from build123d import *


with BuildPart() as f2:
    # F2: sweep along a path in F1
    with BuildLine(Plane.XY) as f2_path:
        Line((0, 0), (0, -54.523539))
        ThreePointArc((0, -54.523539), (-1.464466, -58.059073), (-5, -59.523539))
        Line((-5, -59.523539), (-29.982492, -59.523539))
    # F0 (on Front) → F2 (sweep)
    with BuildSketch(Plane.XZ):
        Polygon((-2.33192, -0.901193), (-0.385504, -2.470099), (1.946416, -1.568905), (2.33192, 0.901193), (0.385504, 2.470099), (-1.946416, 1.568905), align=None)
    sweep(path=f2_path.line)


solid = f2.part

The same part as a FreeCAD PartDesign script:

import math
import FreeCAD as App
import Part
import Sketcher

V = App.Vector
Q = App.Units.Quantity


def add_polygon(sketch, points):
    """Adds a closed chain of lines whose ends are joined by coincident constraints."""
    first, n = sketch.GeometryCount, len(points)
    for a, b in zip(points, points[1:] + points[:1]):
        sketch.addGeometry(Part.LineSegment(App.Vector(*a, 0), App.Vector(*b, 0)), False)
    for i in range(n):
        sketch.addConstraint(Sketcher.Constraint("Coincident", first + i, 2, first + (i + 1) % n, 1))

doc = App.newDocument("Part")
body = doc.addObject("PartDesign::Body", "Body")

# Sketch on XZ plane
sketch1 = body.newObject("Sketcher::SketchObject", "Sketch")
sketch1.AttachmentSupport = (doc.getObject("XZ_Plane"), [""])
sketch1.MapMode = "FlatFace"
add_polygon(sketch1, [(-2.33192, -0.901193), (-0.385504, -2.470099), (1.946416, -1.568905), (2.33192, 0.901193), (0.385504, 2.470099), (-1.946416, 1.568905)])  # lines 0-5
sketch1.addConstraint(Sketcher.Constraint("Symmetric", 0, 2, 3, 2, -1, 1))
sketch1.addConstraint(Sketcher.Constraint("Symmetric", 1, 2, 4, 2, -1, 1))
sketch1.addConstraint(Sketcher.Constraint("Symmetric", 2, 2, 5, 2, -1, 1))
sketch1.addConstraint(Sketcher.Constraint("Equal", 0, 1))
sketch1.addConstraint(Sketcher.Constraint("Equal", 1, 2))
sketch1.addConstraint(Sketcher.Constraint("Distance", 0, Q("2.5 mm")))
sketch1.addConstraint(Sketcher.Constraint("DistanceY", 0, 2, -1, 1, Q("2.470099 mm")))
sketch1.addConstraint(Sketcher.Constraint("DistanceY", 1, 2, 2, 2, Q("2.470098 mm")))
sketch1.addConstraint(Sketcher.Constraint("DistanceX", -1, 1, 2, 2, Q("2.33192 mm")))

# Sketch on XY plane
sketch2 = body.newObject("Sketcher::SketchObject", "Sketch001")
sketch2.AttachmentSupport = (doc.getObject("XY_Plane"), [""])
sketch2.MapMode = "FlatFace"
sketch2.addGeometry(Part.LineSegment(V(0, 0, 0), V(0, -54.523539, 0)), False)
sketch2.addGeometry(Part.ArcOfCircle(Part.Circle(V(-5, -54.523539, 0), V(0, 0, 1), 5), math.radians(-90.000004), math.radians(0.000004)), False)
sketch2.addGeometry(Part.LineSegment(V(-5, -59.523539, 0), V(-29.982492, -59.523539, 0)), False)
sketch2.addConstraint(Sketcher.Constraint("Tangent", 0, 2, 1, 2))
sketch2.addConstraint(Sketcher.Constraint("Tangent", 1, 1, 2, 1))
sketch2.addConstraint(Sketcher.Constraint("Vertical", 0))
sketch2.addConstraint(Sketcher.Constraint("Horizontal", 2))
sketch2.addConstraint(Sketcher.Constraint("Coincident", 0, 1, -1, 1))
sketch2.addConstraint(Sketcher.Constraint("Radius", 1, Q("5 mm")))
sketch2.addConstraint(Sketcher.Constraint("DistanceY", 0, 2, 0, 1, Q("54.523539 mm")))
sketch2.addConstraint(Sketcher.Constraint("DistanceX", 2, 2, 2, 1, Q("24.982492 mm")))
doc.recompute()

additivepipe = body.newObject("PartDesign::AdditivePipe", "AdditivePipe")
additivepipe.Profile = sketch1
additivepipe.Spine = (sketch2, ["Edge1", "Edge2", "Edge3"])

doc.recompute()
